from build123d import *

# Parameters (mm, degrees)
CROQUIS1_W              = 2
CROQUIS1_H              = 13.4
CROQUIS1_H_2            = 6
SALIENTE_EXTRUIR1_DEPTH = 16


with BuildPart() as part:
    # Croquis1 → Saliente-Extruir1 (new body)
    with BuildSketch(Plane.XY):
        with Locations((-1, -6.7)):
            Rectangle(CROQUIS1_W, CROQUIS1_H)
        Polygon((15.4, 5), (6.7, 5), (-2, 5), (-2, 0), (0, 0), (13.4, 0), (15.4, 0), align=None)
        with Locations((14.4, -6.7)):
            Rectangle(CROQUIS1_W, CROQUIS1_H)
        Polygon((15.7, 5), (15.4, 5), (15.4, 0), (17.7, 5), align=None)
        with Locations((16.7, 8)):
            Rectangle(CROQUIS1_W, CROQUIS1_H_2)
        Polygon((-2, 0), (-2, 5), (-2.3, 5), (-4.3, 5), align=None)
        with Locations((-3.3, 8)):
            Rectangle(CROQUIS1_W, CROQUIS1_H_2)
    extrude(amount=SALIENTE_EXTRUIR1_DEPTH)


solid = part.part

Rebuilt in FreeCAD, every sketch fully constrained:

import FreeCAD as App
import Part
import Sketcher

V = App.Vector
Q = App.Units.Quantity


def add_polygon(sketch, points):
    """Adds a closed chain of lines whose ends are joined by coincident constraints."""
    first, n = sketch.GeometryCount, len(points)
    for a, b in zip(points, points[1:] + points[:1]):
        sketch.addGeometry(Part.LineSegment(App.Vector(*a, 0), App.Vector(*b, 0)), False)
    for i in range(n):
        sketch.addConstraint(Sketcher.Constraint("Coincident", first + i, 2, first + (i + 1) % n, 1))

doc = App.newDocument("Part")
body = doc.addObject("PartDesign::Body", "Body")

# Sketch on XY plane
sketch1 = body.newObject("Sketcher::SketchObject", "Sketch")
sketch1.AttachmentSupport = (doc.getObject("XY_Plane"), [""])
sketch1.MapMode = "FlatFace"
add_polygon(sketch1, [(-2, -13.4), (0, -13.4), (0, 0), (13.4, 0), (13.4, -13.4), (15.4, -13.4), (15.4, 0), (17.7, 5), (17.7, 11), (15.7, 11), (15.7, 5), (-2.3, 5), (-2.3, 11), (-4.3, 11), (-4.3, 5), (-2, 0)])  # lines 0-15
sketch1.addConstraint([
    Sketcher.Constraint("Horizontal", 0),
    Sketcher.Constraint("Vertical", 1),
    Sketcher.Constraint("Horizontal", 2),
    Sketcher.Constraint("Vertical", 3),
    Sketcher.Constraint("Horizontal", 4),
    Sketcher.Constraint("Vertical", 5),
    Sketcher.Constraint("Vertical", 7),
    Sketcher.Constraint("Horizontal", 8),
    Sketcher.Constraint("Vertical", 9),
    Sketcher.Constraint("Horizontal", 10),
    Sketcher.Constraint("Vertical", 11),
    Sketcher.Constraint("Horizontal", 12),
    Sketcher.Constraint("Vertical", 13),
    Sketcher.Constraint("Vertical", 15),
    Sketcher.Constraint("Coincident", 1, 2, -1, 1),
    Sketcher.Constraint("PointOnObject", 5, 2, -1),
    Sketcher.Constraint("PointOnObject", 14, 2, -1),
    Sketcher.Constraint("Horizontal", 0, 2, 3, 2),
    Sketcher.Constraint("Horizontal", 6, 2, 9, 2),
    Sketcher.Constraint("Horizontal", 8, 2, 11, 2),
    Sketcher.Constraint("Horizontal", 10, 2, 13, 2),
    Sketcher.Constraint("Equal", 0, 4),
    Sketcher.Constraint("Equal", 4, 8),
    Sketcher.Constraint("Equal", 8, 12),
    Sketcher.Constraint("Equal", 2, 1),
    Sketcher.Constraint("Equal", 6, 14),
    Sketcher.Constraint("DistanceX", 0, 1, 0, 2, Q("2 mm")),
    Sketcher.Constraint("DistanceX", 10, 2, 10, 1, Q("18 mm")),
    Sketcher.Constraint("DistanceY", 7, 1, 7, 2, Q("6 mm")),
    Sketcher.Constraint("DistanceX", 2, 1, 2, 2, Q("13.4 mm")),
    Sketcher.Constraint("DistanceY", -1, 1, 6, 2, Q("5 mm")),
])
pad1 = body.newObject("PartDesign::Pad", "Pad")
pad1.Profile = sketch1
pad1.Length = 16

doc.recompute()
